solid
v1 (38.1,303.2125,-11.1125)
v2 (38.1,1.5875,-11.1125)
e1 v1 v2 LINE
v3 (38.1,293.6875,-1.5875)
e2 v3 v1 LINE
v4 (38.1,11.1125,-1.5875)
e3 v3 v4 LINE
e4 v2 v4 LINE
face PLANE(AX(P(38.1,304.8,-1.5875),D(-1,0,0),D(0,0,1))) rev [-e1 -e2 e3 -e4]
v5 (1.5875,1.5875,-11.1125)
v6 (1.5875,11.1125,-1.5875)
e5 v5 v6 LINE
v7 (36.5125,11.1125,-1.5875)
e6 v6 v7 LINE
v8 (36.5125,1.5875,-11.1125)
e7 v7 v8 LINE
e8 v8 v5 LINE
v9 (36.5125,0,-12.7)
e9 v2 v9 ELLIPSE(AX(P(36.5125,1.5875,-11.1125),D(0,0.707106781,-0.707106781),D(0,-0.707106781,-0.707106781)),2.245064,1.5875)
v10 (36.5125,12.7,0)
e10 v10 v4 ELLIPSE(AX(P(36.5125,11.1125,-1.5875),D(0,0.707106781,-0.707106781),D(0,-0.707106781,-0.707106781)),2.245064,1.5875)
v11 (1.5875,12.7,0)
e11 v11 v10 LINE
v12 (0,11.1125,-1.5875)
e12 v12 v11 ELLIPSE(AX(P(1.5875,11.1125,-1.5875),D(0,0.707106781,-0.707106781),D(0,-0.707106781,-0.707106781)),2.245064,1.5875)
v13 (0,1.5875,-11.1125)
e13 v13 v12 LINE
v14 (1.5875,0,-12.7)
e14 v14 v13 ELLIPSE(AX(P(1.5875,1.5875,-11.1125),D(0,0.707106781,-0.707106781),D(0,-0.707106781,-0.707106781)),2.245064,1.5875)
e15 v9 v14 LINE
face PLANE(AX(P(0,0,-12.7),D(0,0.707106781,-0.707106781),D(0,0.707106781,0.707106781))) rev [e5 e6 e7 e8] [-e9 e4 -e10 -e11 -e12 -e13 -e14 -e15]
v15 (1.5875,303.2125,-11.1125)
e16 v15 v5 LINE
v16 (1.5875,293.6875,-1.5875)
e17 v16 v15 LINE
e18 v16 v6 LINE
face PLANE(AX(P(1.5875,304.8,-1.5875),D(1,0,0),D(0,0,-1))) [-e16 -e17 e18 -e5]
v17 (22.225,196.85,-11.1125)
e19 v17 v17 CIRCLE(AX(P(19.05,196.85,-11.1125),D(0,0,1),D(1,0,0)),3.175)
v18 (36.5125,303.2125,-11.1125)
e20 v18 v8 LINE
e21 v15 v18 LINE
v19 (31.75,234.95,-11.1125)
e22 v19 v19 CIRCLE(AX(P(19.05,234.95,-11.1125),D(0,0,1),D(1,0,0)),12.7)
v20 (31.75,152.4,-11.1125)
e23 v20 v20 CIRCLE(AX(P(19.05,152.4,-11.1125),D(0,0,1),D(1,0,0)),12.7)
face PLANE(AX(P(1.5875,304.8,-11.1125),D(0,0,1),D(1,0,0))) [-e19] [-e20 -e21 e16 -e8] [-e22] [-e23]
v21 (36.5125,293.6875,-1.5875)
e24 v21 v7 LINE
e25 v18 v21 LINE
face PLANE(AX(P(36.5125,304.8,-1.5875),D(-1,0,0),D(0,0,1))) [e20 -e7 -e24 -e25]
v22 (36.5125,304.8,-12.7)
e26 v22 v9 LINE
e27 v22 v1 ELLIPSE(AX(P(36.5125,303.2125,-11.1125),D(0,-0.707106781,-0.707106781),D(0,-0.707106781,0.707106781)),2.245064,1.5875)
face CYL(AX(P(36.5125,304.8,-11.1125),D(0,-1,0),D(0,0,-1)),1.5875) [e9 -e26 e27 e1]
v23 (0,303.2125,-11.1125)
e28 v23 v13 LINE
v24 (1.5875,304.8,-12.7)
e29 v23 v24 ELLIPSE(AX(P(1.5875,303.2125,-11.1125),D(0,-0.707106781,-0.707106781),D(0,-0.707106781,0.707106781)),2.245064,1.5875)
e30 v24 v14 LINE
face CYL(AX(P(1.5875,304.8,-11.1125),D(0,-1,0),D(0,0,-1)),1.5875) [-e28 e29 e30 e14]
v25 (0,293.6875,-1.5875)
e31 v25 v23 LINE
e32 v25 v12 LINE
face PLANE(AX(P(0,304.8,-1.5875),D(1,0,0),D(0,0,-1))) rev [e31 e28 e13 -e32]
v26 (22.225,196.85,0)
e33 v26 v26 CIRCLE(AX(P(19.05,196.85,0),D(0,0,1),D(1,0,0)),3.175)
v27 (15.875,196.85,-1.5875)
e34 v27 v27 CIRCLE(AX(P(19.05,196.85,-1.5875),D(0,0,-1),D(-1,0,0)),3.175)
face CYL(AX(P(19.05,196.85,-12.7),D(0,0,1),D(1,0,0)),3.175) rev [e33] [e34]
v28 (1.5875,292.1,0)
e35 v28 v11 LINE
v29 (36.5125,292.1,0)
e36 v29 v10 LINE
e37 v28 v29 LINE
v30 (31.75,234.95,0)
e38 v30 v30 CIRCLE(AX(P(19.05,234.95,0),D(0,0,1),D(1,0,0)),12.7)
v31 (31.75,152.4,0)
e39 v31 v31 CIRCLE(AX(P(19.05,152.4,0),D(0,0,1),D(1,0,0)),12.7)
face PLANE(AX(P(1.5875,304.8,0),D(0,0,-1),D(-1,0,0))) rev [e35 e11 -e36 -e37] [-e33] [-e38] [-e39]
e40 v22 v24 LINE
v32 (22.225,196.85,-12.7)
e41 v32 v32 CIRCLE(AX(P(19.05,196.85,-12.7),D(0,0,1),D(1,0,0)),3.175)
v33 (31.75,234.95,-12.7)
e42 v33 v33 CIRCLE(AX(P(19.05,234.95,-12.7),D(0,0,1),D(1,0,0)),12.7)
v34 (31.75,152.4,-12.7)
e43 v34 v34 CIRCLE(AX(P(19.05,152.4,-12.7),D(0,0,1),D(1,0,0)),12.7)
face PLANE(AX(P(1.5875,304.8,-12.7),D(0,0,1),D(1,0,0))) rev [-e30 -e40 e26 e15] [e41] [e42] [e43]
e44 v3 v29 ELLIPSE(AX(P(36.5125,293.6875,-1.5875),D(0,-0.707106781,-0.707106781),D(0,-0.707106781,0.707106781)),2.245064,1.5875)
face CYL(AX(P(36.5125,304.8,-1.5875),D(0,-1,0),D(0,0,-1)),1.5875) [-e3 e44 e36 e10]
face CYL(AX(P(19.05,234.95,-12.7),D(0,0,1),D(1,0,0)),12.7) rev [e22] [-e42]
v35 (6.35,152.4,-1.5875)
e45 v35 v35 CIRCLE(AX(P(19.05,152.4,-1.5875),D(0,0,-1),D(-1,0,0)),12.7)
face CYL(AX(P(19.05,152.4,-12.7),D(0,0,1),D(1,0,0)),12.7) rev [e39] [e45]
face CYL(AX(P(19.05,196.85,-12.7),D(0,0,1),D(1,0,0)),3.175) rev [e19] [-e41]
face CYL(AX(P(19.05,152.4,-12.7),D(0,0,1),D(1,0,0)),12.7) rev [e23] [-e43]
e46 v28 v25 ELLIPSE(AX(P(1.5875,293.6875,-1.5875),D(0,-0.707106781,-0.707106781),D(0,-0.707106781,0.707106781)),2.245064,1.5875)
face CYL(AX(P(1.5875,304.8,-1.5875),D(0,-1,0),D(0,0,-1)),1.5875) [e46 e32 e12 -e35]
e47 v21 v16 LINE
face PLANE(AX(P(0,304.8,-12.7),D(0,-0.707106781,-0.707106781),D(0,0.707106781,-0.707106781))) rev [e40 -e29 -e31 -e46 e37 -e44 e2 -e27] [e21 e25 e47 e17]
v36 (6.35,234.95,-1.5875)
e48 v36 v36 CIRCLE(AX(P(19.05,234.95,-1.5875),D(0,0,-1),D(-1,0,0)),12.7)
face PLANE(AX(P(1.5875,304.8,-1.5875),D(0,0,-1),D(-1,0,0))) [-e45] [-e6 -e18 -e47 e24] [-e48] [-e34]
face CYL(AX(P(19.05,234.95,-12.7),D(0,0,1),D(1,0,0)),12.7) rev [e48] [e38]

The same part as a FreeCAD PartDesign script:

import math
import FreeCAD as App
import Part
import Sketcher

V = App.Vector
Q = App.Units.Quantity


def add_polygon(sketch, points):
    """Adds a closed chain of lines whose ends are joined by coincident constraints."""
    first, n = sketch.GeometryCount, len(points)
    for a, b in zip(points, points[1:] + points[:1]):
        sketch.addGeometry(Part.LineSegment(App.Vector(*a, 0), App.Vector(*b, 0)), False)
    for i in range(n):
        sketch.addConstraint(Sketcher.Constraint("Coincident", first + i, 2, first + (i + 1) % n, 1))

doc = App.newDocument("Part")
params = doc.addObject("Spreadsheet::Sheet", "Params")
for row, (alias, value) in enumerate([
    ("sketch1_radius", "0.0625 in"),
    ("pad1_length", "12 in"),
    ("sketch2_diameter", "1 in"),
    ("sketch2_diameter2", "0.25 in"),
    ("sketch3_width", "0.5 in"),
], start=1):
    params.set(f"A{row}", alias)
    params.set(f"B{row}", "=" + value)
    params.setAlias(f"B{row}", alias)

body = doc.addObject("PartDesign::Body", "Body")

# Sketch on XZ plane
sketch1 = doc.addObject("Sketcher::SketchObject", "Sketch")
body.addObject(sketch1)
sketch1.AttachmentSupport = (doc.XZ_Plane, [""])
sketch1.MapMode = "FlatFace"
sketch1.addGeometry(Part.LineSegment(V(1.6, 0, 0), V(36.5, 0, 0)), False)  # 0
sketch1.addGeometry(Part.ArcOfCircle(Part.Circle(V(36.5, -1.6, 0), V(0, 0, 1), 1.6), math.radians(0), math.radians(90)), False)  # 1
sketch1.addGeometry(Part.LineSegment(V(38.1, -1.6, 0), V(38.1, -11.1, 0)), False)  # 2
sketch1.addGeometry(Part.ArcOfCircle(Part.Circle(V(36.5, -11.1, 0), V(0, 0, 1), 1.6), math.radians(-90), math.radians(0)), False)  # 3
sketch1.addGeometry(Part.LineSegment(V(36.5, -12.7, 0), V(1.6, -12.7, 0)), False)  # 4
sketch1.addGeometry(Part.ArcOfCircle(Part.Circle(V(1.6, -11.1, 0), V(0, 0, 1), 1.6), math.radians(180), math.radians(270)), False)  # 5
sketch1.addGeometry(Part.LineSegment(V(0, -11.1, 0), V(0, -1.6, 0)), False)  # 6
sketch1.addGeometry(Part.ArcOfCircle(Part.Circle(V(1.6, -1.6, 0), V(0, 0, 1), 1.6), math.radians(90), math.radians(180)), False)  # 7
add_polygon(sketch1, [(36.5, -1.6), (1.6, -1.6), (1.6, -11.1), (36.5, -11.1)])  # lines 8-11
sketch1.addConstraint([
    Sketcher.Constraint("Tangent", 0, 2, 1, 2),
    Sketcher.Constraint("Tangent", 1, 1, 2, 1),
    Sketcher.Constraint("Tangent", 2, 2, 3, 2),
    Sketcher.Constraint("Tangent", 3, 1, 4, 1),
    Sketcher.Constraint("Tangent", 4, 2, 5, 2),
    Sketcher.Constraint("Tangent", 5, 1, 6, 1),
    Sketcher.Constraint("Tangent", 6, 2, 7, 2),
    Sketcher.Constraint("Tangent", 7, 1, 0, 1),
    Sketcher.Constraint("Horizontal", 0),
    Sketcher.Constraint("Vertical", 2),
    Sketcher.Constraint("Horizontal", 4),
    Sketcher.Constraint("Vertical", 6),
    Sketcher.Constraint("Horizontal", 8),
    Sketcher.Constraint("Vertical", 9),
    Sketcher.Constraint("Horizontal", 10),
    Sketcher.Constraint("Vertical", 11),
    Sketcher.Constraint("Coincident", 8, 2, 7, 3),
    Sketcher.Constraint("Coincident", 9, 2, 5, 3),
    Sketcher.Constraint("Coincident", 10, 2, 3, 3),
    Sketcher.Constraint("Equal", 1, 3),
    Sketcher.Constraint("PointOnObject", 0, 2, -1),
    Sketcher.Constraint("PointOnObject", 5, 1, -2),
    Sketcher.Constraint("Radius", 1, Q("0.0625 in")),
    Sketcher.Constraint("DistanceX", -1, 1, 1, 1, Q("1.5 in")),
    Sketcher.Constraint("DistanceY", 3, 1, -1, 1, Q("0.5 in")),
])
sketch1.setExpression("Constraints[26]", "Params.sketch1_radius")
pad1 = doc.addObject("PartDesign::Pad", "Pad")
body.addObject(pad1)
pad1.Profile = sketch1
pad1.setExpression("Length", "Params.pad1_length")
pad1.Reversed = True

# Sketch on XY plane
sketch2 = doc.addObject("Sketcher::SketchObject", "Sketch001")
body.addObject(sketch2)
sketch2.AttachmentSupport = (doc.XY_Plane, [""])
sketch2.MapMode = "FlatFace"
sketch2.addGeometry([
    Part.Circle(V(19.1, 152.4, 0), V(0, 0, 1), 12.7),
    Part.Circle(V(19.1, 196.8, 0), V(0, 0, 1), 3.2),
    Part.Circle(V(19.1, 234.9, 0), V(0, 0, 1), 12.7),
], False)
sketch2.addConstraint([
    Sketcher.Constraint("Equal", 0, 2),
    Sketcher.Constraint("Vertical", 0, 3, 1, 3),
    Sketcher.Constraint("Vertical", 1, 3, 2, 3),
    Sketcher.Constraint("Diameter", 0, Q("1 in")),
    Sketcher.Constraint("Diameter", 1, Q("0.25 in")),
    Sketcher.Constraint("DistanceY", -1, 1, 0, 3, Q("6 in")),
    Sketcher.Constraint("DistanceY", 1, 3, 2, 3, Q("1.5 in")),
    Sketcher.Constraint("DistanceX", -1, 1, 0, 3, Q("0.75 in")),
    Sketcher.Constraint("DistanceY", -1, 1, 1, 3, Q("7.75 in")),
])
sketch2.setExpression("Constraints[3]", "Params.sketch2_diameter")
sketch2.setExpression("Constraints[4]", "Params.sketch2_diameter2")
pocket1 = doc.addObject("PartDesign::Pocket", "Pocket")
body.addObject(pocket1)
pocket1.Profile = sketch2
pocket1.Type = "ThroughAll"

# Sketch on YZ plane
sketch3 = doc.addObject("Sketcher::SketchObject", "Sketch002")
body.addObject(sketch3)
sketch3.AttachmentSupport = (doc.YZ_Plane, [""])
sketch3.MapMode = "FlatFace"
sketch3.AttachmentOffset = App.Placement(V(0, 0, 1.5 * 25.4), App.Rotation())
add_polygon(sketch3, [(0, 0), (0, -13), (13, 0)])  # lines 0-2
add_polygon(sketch3, [(305, -13), (305, 0), (292, 0)])  # lines 3-5
sketch3.addConstraint([
    Sketcher.Constraint("Vertical", 0),
    Sketcher.Constraint("Horizontal", 2),
    Sketcher.Constraint("Vertical", 3),
    Sketcher.Constraint("Horizontal", 4),
    Sketcher.Constraint("Coincident", 2, 2, -1, 1),
    Sketcher.Constraint("PointOnObject", 3, 2, -1),
    Sketcher.Constraint("Perpendicular", 1, 5),
    Sketcher.Constraint("Horizontal", 0, 2, 5, 2),
    Sketcher.Constraint("Equal", 2, 4),
    Sketcher.Constraint("DistanceX", 2, 2, 2, 1, Q("0.5 in")),
    Sketcher.Constraint("DistanceX", -1, 1, 3, 2, Q("12 in")),
])
sketch3.setExpression("Constraints[15]", "Params.sketch3_width")
pocket2 = doc.addObject("PartDesign::Pocket", "Pocket001")
body.addObject(pocket2)
pocket2.Profile = sketch3
pocket2.Type = "ThroughAll"

doc.recompute()
